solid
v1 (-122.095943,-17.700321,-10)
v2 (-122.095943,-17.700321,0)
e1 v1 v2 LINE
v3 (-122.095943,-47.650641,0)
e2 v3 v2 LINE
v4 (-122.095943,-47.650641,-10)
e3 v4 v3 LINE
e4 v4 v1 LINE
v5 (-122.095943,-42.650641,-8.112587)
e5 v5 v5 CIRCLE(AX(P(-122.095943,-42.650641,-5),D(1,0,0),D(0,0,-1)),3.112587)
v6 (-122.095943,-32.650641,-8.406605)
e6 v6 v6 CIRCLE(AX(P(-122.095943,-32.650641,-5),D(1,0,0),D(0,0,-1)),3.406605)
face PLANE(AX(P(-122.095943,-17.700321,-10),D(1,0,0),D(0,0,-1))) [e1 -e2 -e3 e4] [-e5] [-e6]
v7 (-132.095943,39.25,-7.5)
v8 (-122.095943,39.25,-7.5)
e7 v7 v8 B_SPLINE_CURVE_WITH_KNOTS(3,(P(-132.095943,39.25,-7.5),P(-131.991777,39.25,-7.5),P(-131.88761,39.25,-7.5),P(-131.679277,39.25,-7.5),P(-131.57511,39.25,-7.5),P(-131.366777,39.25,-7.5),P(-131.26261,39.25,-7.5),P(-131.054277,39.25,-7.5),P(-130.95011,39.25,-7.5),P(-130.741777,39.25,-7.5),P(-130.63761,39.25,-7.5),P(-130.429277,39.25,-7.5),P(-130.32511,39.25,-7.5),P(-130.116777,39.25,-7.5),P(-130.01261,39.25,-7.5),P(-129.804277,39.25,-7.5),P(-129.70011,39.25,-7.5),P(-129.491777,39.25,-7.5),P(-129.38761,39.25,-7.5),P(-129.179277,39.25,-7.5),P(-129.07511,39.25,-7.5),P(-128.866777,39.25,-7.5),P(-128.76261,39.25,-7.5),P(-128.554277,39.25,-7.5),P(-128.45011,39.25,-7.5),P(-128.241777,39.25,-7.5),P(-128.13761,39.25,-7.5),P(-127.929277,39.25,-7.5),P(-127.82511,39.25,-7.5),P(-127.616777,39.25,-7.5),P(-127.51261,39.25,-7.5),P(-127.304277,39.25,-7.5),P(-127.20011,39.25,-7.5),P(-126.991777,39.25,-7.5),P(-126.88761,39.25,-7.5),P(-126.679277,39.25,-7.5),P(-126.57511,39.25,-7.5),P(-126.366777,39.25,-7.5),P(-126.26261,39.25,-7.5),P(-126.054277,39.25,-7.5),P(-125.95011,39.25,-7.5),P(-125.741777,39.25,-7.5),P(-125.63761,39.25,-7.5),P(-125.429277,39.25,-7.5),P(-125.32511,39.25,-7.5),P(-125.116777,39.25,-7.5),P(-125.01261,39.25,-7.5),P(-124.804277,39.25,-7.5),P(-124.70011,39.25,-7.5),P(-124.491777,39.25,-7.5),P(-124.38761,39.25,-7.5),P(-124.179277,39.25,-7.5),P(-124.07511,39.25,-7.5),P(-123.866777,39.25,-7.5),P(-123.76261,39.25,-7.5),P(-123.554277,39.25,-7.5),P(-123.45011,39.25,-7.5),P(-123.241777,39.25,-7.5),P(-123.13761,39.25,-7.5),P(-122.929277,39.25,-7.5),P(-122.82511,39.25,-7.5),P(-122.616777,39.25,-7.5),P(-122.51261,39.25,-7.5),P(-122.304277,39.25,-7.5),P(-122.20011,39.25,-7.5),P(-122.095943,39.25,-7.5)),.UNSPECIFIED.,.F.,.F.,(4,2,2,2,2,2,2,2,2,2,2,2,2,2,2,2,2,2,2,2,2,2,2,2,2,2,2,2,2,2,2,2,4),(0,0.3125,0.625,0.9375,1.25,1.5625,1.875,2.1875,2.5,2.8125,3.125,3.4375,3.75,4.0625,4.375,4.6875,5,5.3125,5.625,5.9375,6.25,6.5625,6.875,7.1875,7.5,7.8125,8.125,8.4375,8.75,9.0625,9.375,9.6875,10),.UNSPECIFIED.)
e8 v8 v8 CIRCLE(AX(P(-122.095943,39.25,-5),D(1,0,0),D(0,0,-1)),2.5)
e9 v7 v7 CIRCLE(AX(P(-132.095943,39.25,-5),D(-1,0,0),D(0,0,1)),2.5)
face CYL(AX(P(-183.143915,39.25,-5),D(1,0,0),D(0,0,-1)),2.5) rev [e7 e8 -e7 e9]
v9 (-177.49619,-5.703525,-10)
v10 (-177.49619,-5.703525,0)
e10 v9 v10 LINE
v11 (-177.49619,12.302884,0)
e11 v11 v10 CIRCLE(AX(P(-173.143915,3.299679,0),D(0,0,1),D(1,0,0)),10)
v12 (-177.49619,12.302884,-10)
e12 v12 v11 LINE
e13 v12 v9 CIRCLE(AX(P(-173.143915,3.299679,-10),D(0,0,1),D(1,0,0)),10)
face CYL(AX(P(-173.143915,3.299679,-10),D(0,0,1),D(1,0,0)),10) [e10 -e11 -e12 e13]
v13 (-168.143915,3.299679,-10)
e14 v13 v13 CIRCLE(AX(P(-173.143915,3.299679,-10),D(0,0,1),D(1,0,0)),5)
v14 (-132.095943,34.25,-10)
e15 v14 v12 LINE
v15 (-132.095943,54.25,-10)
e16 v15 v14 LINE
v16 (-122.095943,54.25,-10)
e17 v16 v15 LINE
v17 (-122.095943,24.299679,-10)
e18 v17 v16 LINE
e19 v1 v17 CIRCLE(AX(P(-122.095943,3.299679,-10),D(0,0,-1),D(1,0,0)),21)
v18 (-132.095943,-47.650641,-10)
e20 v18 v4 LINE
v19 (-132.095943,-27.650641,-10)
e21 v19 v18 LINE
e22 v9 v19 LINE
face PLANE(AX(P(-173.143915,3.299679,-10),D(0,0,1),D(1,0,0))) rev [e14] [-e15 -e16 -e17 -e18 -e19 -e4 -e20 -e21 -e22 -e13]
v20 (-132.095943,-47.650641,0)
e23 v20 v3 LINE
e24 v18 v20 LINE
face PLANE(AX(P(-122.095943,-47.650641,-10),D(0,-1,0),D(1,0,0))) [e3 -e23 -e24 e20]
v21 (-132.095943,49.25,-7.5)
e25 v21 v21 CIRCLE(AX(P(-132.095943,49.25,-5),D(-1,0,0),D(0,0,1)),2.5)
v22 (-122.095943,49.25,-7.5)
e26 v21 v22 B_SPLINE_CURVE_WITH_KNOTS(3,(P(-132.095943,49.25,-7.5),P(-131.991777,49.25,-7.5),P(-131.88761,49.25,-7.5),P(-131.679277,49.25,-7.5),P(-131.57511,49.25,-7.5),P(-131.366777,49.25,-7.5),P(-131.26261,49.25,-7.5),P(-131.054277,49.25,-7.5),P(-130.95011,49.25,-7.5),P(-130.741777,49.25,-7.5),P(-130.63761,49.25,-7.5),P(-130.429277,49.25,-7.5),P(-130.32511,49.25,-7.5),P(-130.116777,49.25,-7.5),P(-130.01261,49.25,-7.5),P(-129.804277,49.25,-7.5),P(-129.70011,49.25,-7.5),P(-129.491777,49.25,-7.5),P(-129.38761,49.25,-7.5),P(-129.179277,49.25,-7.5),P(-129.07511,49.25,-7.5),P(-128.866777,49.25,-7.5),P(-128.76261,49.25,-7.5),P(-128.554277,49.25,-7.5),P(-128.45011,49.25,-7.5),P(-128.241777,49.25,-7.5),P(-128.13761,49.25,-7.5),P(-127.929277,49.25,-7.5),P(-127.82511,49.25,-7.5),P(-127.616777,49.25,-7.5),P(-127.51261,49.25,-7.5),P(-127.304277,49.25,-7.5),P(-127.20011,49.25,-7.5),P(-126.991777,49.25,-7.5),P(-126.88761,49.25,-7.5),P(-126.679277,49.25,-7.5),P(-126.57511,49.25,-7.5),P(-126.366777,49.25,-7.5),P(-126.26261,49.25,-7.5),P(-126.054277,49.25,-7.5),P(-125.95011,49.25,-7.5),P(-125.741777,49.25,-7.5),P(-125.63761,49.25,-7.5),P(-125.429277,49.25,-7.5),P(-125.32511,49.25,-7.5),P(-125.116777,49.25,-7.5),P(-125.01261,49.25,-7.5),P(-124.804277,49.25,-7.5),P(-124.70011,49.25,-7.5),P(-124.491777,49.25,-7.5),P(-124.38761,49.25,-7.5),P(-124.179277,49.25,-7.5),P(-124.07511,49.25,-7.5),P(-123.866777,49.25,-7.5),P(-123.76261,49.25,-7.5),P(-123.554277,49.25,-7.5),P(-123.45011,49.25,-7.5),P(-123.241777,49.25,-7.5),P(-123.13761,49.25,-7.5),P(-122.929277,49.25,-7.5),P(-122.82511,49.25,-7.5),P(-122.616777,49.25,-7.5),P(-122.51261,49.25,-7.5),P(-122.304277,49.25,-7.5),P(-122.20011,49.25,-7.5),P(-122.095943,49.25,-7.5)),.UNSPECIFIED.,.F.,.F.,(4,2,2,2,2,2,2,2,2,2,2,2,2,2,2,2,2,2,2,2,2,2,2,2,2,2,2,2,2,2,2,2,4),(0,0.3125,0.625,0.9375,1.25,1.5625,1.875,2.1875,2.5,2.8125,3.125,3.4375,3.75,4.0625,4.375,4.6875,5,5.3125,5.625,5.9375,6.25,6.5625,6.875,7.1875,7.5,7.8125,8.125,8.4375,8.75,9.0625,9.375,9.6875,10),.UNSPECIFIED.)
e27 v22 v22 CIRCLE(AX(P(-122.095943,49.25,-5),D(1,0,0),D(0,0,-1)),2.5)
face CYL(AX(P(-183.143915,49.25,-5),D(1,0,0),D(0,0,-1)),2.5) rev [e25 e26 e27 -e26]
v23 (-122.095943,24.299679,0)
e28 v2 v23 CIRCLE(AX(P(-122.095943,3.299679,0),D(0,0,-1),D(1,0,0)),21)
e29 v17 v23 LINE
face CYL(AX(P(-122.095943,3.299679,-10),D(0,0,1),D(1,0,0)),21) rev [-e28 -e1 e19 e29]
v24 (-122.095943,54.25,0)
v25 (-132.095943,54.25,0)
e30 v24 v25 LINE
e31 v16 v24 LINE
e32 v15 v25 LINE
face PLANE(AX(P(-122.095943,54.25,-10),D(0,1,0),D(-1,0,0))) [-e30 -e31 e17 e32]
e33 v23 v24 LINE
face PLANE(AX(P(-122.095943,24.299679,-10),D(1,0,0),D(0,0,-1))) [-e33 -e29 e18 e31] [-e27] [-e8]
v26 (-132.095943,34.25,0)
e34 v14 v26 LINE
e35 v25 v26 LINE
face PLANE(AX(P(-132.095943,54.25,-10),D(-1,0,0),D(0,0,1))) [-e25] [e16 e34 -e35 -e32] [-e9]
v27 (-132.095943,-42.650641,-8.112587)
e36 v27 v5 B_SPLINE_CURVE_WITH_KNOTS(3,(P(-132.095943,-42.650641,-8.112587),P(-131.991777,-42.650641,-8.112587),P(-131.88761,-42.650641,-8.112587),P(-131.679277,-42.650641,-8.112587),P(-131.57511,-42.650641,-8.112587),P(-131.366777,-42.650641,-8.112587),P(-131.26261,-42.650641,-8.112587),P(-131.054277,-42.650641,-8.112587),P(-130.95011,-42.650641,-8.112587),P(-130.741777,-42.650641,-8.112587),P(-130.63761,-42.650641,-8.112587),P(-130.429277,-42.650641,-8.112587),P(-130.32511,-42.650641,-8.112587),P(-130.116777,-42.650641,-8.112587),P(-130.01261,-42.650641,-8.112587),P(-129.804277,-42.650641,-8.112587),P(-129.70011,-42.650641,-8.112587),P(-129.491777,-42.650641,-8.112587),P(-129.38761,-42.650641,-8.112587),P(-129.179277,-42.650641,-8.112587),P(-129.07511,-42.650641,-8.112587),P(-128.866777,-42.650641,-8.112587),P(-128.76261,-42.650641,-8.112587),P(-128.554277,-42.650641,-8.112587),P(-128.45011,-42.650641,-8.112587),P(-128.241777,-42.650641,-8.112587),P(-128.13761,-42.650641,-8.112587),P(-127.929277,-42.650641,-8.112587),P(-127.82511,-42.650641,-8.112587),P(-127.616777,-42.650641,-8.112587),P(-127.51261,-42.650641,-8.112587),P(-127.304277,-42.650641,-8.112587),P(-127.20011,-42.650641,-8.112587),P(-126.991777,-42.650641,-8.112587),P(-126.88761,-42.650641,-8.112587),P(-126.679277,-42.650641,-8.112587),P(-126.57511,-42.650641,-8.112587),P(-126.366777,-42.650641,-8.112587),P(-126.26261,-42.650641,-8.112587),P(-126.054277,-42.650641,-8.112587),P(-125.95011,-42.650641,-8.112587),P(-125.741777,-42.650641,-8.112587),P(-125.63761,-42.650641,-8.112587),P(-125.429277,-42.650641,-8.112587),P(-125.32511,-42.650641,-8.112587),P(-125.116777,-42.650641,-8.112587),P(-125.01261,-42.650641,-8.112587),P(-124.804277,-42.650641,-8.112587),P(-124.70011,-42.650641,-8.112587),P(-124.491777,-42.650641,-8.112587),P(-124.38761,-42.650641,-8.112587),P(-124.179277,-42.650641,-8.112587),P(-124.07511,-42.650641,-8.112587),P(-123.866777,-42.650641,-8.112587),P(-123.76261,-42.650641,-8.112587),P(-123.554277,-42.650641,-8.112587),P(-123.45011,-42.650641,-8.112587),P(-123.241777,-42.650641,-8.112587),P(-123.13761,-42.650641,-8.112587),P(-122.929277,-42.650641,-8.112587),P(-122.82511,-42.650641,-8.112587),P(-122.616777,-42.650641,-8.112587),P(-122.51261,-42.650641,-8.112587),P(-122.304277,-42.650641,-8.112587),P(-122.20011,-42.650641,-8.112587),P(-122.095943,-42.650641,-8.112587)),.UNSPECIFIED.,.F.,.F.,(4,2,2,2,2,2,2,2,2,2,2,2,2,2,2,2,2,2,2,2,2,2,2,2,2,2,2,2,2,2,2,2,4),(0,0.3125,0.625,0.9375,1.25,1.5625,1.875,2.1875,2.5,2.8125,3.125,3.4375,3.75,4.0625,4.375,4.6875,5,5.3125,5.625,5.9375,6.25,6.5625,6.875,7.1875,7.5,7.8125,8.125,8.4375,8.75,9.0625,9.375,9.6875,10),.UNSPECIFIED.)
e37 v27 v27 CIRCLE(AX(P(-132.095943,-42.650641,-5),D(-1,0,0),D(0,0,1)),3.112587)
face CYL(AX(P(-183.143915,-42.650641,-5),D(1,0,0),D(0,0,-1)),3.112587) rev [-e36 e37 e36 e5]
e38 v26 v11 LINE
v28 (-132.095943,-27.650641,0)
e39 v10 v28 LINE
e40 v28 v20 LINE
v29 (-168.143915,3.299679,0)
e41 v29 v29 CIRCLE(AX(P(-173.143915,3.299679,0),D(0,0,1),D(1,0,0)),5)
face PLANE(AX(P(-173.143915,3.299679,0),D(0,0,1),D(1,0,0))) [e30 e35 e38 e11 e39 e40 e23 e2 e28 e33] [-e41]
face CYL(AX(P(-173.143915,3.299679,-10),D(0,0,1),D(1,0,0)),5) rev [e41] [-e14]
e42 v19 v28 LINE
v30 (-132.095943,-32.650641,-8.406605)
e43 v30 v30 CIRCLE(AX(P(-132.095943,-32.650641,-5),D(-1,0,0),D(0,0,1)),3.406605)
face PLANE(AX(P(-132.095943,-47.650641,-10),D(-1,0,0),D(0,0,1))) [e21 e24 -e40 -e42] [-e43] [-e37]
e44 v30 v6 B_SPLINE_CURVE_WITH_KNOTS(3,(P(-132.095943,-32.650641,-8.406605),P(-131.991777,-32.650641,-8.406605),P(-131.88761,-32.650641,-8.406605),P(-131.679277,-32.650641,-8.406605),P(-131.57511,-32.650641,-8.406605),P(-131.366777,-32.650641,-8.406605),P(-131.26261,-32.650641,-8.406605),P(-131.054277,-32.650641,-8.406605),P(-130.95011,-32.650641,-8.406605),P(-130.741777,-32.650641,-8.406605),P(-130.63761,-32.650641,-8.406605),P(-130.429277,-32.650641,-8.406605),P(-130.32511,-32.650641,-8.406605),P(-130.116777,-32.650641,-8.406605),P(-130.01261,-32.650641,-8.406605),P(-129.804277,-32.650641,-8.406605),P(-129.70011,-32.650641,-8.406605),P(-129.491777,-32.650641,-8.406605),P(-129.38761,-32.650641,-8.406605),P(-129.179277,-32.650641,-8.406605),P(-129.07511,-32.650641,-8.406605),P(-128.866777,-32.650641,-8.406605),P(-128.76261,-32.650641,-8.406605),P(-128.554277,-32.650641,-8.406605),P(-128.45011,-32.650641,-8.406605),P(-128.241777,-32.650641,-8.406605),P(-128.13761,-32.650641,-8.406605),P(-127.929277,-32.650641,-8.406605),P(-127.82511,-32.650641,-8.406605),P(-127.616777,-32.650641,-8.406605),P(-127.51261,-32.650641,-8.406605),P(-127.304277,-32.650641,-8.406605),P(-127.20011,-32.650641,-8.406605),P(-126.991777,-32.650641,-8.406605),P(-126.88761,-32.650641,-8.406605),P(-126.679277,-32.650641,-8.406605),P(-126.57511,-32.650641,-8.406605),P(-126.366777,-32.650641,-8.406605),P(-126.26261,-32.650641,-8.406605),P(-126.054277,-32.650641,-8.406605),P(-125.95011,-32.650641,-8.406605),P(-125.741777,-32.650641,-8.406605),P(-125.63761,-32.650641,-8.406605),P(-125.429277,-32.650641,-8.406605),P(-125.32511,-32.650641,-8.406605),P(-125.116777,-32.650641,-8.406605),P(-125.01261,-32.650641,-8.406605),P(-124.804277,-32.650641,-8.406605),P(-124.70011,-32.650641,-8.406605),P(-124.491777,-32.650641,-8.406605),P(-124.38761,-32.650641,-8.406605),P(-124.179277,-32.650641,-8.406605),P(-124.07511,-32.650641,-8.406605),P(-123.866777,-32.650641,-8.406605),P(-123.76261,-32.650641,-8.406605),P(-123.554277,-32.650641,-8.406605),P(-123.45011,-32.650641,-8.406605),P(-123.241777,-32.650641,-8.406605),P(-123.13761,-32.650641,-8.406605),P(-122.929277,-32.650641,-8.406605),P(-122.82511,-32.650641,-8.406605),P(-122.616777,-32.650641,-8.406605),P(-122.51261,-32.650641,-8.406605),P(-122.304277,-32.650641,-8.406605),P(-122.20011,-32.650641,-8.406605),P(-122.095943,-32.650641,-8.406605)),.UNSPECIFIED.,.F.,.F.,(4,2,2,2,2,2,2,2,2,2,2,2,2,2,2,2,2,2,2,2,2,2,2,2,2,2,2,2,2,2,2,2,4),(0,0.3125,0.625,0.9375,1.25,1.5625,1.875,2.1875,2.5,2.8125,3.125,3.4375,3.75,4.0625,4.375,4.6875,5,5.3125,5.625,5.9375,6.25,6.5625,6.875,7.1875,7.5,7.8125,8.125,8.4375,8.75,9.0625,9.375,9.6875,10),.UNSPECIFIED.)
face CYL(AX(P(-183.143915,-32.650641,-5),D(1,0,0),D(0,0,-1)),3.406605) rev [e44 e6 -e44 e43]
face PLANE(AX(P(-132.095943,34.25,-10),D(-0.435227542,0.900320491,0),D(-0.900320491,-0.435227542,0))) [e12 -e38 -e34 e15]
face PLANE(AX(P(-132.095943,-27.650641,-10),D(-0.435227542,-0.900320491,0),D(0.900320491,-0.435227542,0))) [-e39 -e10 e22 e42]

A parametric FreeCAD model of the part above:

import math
import FreeCAD as App
import Part
import Sketcher

V = App.Vector

doc = App.newDocument("Part")
body = doc.addObject("PartDesign::Body", "Body")

sketch1 = doc.addObject("Sketcher::SketchObject", "Sketch")
body.addObject(sketch1)
sketch1.AttachmentSupport = (doc.XY_Plane, [""])
sketch1.MapMode = "FlatFace"
sketch1.addGeometry([
    Part.LineSegment(V(-122.095943, 24.299679, 0), V(-122.095943, 54.25, 0)),
    Part.LineSegment(V(-122.095943, 54.25, 0), V(-132.095943, 54.25, 0)),
    Part.LineSegment(V(-132.095943, 54.25, 0), V(-132.095943, 34.25, 0)),
    Part.LineSegment(V(-132.095943, 34.25, 0), V(-177.49619, 12.302884, 0)),
    Part.ArcOfCircle(Part.Circle(V(-173.143915, 3.299679, 0), V(0, 0, 1), 10), math.radians(115.799774), math.radians(244.200226)),
    Part.LineSegment(V(-177.49619, -5.703525, 0), V(-132.095943, -27.650641, 0)),
    Part.LineSegment(V(-132.095943, -27.650641, 0), V(-132.095943, -47.650641, 0)),
    Part.LineSegment(V(-132.095943, -47.650641, 0), V(-122.095943, -47.650641, 0)),
    Part.LineSegment(V(-122.095943, -47.650641, 0), V(-122.095943, -17.700321, 0)),
    Part.ArcOfCircle(Part.Circle(V(-122.095943, 3.299679, 0), V(0, 0, 1), 21), math.radians(90), math.radians(270)),
], False)
sketch1.addConstraint([
    Sketcher.Constraint("Coincident", 0, 2, 1, 1),
    Sketcher.Constraint("Coincident", 1, 2, 2, 1),
    Sketcher.Constraint("Coincident", 2, 2, 3, 1),
    Sketcher.Constraint("Tangent", 3, 2, 4, 1),
    Sketcher.Constraint("Tangent", 4, 2, 5, 1),
    Sketcher.Constraint("Coincident", 5, 2, 6, 1),
    Sketcher.Constraint("Coincident", 6, 2, 7, 1),
    Sketcher.Constraint("Coincident", 7, 2, 8, 1),
    Sketcher.Constraint("Coincident", 8, 2, 9, 2),
    Sketcher.Constraint("Coincident", 9, 1, 0, 1),
    Sketcher.Constraint("Vertical", 0),
    Sketcher.Constraint("Horizontal", 1),
    Sketcher.Constraint("Vertical", 2),
    Sketcher.Constraint("Vertical", 6),
    Sketcher.Constraint("Horizontal", 7),
    Sketcher.Constraint("Vertical", 8),
    Sketcher.Constraint("Horizontal", 4, 3, 9, 3),
    Sketcher.Constraint("Vertical", 9, 3, 0, 2),
    Sketcher.Constraint("Vertical", 3, 2, 4, 2),
    Sketcher.Constraint("Vertical", 2, 2, 5, 2),
    Sketcher.Constraint("Vertical", 0, 2, 7, 2),
    Sketcher.Constraint("Equal", 2, 6),
    Sketcher.Constraint("Radius", 4, 10.0),
    Sketcher.Constraint("Radius", 9, 21.0),
    Sketcher.Constraint("DistanceX", 1, 2, 1, 1, 10.0),
    Sketcher.Constraint("DistanceY", 2, 2, 2, 1, 20.0),
    Sketcher.Constraint("DistanceY", -1, 1, 0, 2, 54.25),
    Sketcher.Constraint("DistanceY", 0, 1, 0, 2, 29.950321),
    Sketcher.Constraint("Distance", 3, 50.426762),
    Sketcher.Constraint("DistanceX", 3, 2, -1, 1, 177.49619),
])
pad1 = doc.addObject("PartDesign::Pad", "Pad")
body.addObject(pad1)
pad1.Profile = sketch1
pad1.Length = 10
pad1.Reversed = True

sketch2 = doc.addObject("Sketcher::SketchObject", "Sketch001")
body.addObject(sketch2)
sketch2.AttachmentSupport = (doc.XY_Plane, [""])
sketch2.MapMode = "FlatFace"
sketch2.addGeometry(Part.Circle(V(-173.143915, 3.299679, 0), V(0, 0, 1), 5), False)
sketch2.addConstraint([
    Sketcher.Constraint("Diameter", 0, 10.0),
    Sketcher.Constraint("DistanceY", -1, 1, 0, 3, 3.299679),
    Sketcher.Constraint("DistanceX", 0, 3, -1, 1, 173.143915),
])
pocket1 = doc.addObject("PartDesign::Pocket", "Pocket")
body.addObject(pocket1)
pocket1.Profile = sketch2
pocket1.Type = "ThroughAll"

sketch3 = doc.addObject("Sketcher::SketchObject", "Sketch002")
body.addObject(sketch3)
sketch3.AttachmentSupport = (doc.YZ_Plane, [""])
sketch3.MapMode = "FlatFace"
sketch3.AttachmentOffset = App.Placement(V(0, 0, -122.095943), App.Rotation())
sketch3.addGeometry([
    Part.Circle(V(49.25, -5, 0), V(0, 0, 1), 2.5),
    Part.Circle(V(39.25, -5, 0), V(0, 0, 1), 2.5),
    Part.Circle(V(-42.650641, -5, 0), V(0, 0, 1), 3.112587),
    Part.Circle(V(-32.650641, -5, 0), V(0, 0, 1), 3.406605),
], False)
sketch3.addConstraint([
    Sketcher.Constraint("Equal", 0, 1),
    Sketcher.Constraint("Horizontal", 0, 3, 1, 3),
    Sketcher.Constraint("Horizontal", 1, 3, 2, 3),
    Sketcher.Constraint("Horizontal", 2, 3, 3, 3),
    Sketcher.Constraint("Diameter", 0, 5.0),
    Sketcher.Constraint("DistanceY", 0, 3, -1, 1, 5.0),
    Sketcher.Constraint("DistanceX", 1, 3, 0, 3, 10.0),
    Sketcher.Constraint("DistanceX", 2, 3, 3, 3, 10.0),
    Sketcher.Constraint("Diameter", 3, 6.813211),
    Sketcher.Constraint("DistanceX", -1, 1, 0, 3, 49.25),
    Sketcher.Constraint("Diameter", 2, 6.225173),
    Sketcher.Constraint("DistanceX", 2, 3, -1, 1, 42.650641),
])
pocket2 = doc.addObject("PartDesign::Pocket", "Pocket001")
body.addObject(pocket2)
pocket2.Profile = sketch3
pocket2.Type = "ThroughAll"

doc.recompute()
